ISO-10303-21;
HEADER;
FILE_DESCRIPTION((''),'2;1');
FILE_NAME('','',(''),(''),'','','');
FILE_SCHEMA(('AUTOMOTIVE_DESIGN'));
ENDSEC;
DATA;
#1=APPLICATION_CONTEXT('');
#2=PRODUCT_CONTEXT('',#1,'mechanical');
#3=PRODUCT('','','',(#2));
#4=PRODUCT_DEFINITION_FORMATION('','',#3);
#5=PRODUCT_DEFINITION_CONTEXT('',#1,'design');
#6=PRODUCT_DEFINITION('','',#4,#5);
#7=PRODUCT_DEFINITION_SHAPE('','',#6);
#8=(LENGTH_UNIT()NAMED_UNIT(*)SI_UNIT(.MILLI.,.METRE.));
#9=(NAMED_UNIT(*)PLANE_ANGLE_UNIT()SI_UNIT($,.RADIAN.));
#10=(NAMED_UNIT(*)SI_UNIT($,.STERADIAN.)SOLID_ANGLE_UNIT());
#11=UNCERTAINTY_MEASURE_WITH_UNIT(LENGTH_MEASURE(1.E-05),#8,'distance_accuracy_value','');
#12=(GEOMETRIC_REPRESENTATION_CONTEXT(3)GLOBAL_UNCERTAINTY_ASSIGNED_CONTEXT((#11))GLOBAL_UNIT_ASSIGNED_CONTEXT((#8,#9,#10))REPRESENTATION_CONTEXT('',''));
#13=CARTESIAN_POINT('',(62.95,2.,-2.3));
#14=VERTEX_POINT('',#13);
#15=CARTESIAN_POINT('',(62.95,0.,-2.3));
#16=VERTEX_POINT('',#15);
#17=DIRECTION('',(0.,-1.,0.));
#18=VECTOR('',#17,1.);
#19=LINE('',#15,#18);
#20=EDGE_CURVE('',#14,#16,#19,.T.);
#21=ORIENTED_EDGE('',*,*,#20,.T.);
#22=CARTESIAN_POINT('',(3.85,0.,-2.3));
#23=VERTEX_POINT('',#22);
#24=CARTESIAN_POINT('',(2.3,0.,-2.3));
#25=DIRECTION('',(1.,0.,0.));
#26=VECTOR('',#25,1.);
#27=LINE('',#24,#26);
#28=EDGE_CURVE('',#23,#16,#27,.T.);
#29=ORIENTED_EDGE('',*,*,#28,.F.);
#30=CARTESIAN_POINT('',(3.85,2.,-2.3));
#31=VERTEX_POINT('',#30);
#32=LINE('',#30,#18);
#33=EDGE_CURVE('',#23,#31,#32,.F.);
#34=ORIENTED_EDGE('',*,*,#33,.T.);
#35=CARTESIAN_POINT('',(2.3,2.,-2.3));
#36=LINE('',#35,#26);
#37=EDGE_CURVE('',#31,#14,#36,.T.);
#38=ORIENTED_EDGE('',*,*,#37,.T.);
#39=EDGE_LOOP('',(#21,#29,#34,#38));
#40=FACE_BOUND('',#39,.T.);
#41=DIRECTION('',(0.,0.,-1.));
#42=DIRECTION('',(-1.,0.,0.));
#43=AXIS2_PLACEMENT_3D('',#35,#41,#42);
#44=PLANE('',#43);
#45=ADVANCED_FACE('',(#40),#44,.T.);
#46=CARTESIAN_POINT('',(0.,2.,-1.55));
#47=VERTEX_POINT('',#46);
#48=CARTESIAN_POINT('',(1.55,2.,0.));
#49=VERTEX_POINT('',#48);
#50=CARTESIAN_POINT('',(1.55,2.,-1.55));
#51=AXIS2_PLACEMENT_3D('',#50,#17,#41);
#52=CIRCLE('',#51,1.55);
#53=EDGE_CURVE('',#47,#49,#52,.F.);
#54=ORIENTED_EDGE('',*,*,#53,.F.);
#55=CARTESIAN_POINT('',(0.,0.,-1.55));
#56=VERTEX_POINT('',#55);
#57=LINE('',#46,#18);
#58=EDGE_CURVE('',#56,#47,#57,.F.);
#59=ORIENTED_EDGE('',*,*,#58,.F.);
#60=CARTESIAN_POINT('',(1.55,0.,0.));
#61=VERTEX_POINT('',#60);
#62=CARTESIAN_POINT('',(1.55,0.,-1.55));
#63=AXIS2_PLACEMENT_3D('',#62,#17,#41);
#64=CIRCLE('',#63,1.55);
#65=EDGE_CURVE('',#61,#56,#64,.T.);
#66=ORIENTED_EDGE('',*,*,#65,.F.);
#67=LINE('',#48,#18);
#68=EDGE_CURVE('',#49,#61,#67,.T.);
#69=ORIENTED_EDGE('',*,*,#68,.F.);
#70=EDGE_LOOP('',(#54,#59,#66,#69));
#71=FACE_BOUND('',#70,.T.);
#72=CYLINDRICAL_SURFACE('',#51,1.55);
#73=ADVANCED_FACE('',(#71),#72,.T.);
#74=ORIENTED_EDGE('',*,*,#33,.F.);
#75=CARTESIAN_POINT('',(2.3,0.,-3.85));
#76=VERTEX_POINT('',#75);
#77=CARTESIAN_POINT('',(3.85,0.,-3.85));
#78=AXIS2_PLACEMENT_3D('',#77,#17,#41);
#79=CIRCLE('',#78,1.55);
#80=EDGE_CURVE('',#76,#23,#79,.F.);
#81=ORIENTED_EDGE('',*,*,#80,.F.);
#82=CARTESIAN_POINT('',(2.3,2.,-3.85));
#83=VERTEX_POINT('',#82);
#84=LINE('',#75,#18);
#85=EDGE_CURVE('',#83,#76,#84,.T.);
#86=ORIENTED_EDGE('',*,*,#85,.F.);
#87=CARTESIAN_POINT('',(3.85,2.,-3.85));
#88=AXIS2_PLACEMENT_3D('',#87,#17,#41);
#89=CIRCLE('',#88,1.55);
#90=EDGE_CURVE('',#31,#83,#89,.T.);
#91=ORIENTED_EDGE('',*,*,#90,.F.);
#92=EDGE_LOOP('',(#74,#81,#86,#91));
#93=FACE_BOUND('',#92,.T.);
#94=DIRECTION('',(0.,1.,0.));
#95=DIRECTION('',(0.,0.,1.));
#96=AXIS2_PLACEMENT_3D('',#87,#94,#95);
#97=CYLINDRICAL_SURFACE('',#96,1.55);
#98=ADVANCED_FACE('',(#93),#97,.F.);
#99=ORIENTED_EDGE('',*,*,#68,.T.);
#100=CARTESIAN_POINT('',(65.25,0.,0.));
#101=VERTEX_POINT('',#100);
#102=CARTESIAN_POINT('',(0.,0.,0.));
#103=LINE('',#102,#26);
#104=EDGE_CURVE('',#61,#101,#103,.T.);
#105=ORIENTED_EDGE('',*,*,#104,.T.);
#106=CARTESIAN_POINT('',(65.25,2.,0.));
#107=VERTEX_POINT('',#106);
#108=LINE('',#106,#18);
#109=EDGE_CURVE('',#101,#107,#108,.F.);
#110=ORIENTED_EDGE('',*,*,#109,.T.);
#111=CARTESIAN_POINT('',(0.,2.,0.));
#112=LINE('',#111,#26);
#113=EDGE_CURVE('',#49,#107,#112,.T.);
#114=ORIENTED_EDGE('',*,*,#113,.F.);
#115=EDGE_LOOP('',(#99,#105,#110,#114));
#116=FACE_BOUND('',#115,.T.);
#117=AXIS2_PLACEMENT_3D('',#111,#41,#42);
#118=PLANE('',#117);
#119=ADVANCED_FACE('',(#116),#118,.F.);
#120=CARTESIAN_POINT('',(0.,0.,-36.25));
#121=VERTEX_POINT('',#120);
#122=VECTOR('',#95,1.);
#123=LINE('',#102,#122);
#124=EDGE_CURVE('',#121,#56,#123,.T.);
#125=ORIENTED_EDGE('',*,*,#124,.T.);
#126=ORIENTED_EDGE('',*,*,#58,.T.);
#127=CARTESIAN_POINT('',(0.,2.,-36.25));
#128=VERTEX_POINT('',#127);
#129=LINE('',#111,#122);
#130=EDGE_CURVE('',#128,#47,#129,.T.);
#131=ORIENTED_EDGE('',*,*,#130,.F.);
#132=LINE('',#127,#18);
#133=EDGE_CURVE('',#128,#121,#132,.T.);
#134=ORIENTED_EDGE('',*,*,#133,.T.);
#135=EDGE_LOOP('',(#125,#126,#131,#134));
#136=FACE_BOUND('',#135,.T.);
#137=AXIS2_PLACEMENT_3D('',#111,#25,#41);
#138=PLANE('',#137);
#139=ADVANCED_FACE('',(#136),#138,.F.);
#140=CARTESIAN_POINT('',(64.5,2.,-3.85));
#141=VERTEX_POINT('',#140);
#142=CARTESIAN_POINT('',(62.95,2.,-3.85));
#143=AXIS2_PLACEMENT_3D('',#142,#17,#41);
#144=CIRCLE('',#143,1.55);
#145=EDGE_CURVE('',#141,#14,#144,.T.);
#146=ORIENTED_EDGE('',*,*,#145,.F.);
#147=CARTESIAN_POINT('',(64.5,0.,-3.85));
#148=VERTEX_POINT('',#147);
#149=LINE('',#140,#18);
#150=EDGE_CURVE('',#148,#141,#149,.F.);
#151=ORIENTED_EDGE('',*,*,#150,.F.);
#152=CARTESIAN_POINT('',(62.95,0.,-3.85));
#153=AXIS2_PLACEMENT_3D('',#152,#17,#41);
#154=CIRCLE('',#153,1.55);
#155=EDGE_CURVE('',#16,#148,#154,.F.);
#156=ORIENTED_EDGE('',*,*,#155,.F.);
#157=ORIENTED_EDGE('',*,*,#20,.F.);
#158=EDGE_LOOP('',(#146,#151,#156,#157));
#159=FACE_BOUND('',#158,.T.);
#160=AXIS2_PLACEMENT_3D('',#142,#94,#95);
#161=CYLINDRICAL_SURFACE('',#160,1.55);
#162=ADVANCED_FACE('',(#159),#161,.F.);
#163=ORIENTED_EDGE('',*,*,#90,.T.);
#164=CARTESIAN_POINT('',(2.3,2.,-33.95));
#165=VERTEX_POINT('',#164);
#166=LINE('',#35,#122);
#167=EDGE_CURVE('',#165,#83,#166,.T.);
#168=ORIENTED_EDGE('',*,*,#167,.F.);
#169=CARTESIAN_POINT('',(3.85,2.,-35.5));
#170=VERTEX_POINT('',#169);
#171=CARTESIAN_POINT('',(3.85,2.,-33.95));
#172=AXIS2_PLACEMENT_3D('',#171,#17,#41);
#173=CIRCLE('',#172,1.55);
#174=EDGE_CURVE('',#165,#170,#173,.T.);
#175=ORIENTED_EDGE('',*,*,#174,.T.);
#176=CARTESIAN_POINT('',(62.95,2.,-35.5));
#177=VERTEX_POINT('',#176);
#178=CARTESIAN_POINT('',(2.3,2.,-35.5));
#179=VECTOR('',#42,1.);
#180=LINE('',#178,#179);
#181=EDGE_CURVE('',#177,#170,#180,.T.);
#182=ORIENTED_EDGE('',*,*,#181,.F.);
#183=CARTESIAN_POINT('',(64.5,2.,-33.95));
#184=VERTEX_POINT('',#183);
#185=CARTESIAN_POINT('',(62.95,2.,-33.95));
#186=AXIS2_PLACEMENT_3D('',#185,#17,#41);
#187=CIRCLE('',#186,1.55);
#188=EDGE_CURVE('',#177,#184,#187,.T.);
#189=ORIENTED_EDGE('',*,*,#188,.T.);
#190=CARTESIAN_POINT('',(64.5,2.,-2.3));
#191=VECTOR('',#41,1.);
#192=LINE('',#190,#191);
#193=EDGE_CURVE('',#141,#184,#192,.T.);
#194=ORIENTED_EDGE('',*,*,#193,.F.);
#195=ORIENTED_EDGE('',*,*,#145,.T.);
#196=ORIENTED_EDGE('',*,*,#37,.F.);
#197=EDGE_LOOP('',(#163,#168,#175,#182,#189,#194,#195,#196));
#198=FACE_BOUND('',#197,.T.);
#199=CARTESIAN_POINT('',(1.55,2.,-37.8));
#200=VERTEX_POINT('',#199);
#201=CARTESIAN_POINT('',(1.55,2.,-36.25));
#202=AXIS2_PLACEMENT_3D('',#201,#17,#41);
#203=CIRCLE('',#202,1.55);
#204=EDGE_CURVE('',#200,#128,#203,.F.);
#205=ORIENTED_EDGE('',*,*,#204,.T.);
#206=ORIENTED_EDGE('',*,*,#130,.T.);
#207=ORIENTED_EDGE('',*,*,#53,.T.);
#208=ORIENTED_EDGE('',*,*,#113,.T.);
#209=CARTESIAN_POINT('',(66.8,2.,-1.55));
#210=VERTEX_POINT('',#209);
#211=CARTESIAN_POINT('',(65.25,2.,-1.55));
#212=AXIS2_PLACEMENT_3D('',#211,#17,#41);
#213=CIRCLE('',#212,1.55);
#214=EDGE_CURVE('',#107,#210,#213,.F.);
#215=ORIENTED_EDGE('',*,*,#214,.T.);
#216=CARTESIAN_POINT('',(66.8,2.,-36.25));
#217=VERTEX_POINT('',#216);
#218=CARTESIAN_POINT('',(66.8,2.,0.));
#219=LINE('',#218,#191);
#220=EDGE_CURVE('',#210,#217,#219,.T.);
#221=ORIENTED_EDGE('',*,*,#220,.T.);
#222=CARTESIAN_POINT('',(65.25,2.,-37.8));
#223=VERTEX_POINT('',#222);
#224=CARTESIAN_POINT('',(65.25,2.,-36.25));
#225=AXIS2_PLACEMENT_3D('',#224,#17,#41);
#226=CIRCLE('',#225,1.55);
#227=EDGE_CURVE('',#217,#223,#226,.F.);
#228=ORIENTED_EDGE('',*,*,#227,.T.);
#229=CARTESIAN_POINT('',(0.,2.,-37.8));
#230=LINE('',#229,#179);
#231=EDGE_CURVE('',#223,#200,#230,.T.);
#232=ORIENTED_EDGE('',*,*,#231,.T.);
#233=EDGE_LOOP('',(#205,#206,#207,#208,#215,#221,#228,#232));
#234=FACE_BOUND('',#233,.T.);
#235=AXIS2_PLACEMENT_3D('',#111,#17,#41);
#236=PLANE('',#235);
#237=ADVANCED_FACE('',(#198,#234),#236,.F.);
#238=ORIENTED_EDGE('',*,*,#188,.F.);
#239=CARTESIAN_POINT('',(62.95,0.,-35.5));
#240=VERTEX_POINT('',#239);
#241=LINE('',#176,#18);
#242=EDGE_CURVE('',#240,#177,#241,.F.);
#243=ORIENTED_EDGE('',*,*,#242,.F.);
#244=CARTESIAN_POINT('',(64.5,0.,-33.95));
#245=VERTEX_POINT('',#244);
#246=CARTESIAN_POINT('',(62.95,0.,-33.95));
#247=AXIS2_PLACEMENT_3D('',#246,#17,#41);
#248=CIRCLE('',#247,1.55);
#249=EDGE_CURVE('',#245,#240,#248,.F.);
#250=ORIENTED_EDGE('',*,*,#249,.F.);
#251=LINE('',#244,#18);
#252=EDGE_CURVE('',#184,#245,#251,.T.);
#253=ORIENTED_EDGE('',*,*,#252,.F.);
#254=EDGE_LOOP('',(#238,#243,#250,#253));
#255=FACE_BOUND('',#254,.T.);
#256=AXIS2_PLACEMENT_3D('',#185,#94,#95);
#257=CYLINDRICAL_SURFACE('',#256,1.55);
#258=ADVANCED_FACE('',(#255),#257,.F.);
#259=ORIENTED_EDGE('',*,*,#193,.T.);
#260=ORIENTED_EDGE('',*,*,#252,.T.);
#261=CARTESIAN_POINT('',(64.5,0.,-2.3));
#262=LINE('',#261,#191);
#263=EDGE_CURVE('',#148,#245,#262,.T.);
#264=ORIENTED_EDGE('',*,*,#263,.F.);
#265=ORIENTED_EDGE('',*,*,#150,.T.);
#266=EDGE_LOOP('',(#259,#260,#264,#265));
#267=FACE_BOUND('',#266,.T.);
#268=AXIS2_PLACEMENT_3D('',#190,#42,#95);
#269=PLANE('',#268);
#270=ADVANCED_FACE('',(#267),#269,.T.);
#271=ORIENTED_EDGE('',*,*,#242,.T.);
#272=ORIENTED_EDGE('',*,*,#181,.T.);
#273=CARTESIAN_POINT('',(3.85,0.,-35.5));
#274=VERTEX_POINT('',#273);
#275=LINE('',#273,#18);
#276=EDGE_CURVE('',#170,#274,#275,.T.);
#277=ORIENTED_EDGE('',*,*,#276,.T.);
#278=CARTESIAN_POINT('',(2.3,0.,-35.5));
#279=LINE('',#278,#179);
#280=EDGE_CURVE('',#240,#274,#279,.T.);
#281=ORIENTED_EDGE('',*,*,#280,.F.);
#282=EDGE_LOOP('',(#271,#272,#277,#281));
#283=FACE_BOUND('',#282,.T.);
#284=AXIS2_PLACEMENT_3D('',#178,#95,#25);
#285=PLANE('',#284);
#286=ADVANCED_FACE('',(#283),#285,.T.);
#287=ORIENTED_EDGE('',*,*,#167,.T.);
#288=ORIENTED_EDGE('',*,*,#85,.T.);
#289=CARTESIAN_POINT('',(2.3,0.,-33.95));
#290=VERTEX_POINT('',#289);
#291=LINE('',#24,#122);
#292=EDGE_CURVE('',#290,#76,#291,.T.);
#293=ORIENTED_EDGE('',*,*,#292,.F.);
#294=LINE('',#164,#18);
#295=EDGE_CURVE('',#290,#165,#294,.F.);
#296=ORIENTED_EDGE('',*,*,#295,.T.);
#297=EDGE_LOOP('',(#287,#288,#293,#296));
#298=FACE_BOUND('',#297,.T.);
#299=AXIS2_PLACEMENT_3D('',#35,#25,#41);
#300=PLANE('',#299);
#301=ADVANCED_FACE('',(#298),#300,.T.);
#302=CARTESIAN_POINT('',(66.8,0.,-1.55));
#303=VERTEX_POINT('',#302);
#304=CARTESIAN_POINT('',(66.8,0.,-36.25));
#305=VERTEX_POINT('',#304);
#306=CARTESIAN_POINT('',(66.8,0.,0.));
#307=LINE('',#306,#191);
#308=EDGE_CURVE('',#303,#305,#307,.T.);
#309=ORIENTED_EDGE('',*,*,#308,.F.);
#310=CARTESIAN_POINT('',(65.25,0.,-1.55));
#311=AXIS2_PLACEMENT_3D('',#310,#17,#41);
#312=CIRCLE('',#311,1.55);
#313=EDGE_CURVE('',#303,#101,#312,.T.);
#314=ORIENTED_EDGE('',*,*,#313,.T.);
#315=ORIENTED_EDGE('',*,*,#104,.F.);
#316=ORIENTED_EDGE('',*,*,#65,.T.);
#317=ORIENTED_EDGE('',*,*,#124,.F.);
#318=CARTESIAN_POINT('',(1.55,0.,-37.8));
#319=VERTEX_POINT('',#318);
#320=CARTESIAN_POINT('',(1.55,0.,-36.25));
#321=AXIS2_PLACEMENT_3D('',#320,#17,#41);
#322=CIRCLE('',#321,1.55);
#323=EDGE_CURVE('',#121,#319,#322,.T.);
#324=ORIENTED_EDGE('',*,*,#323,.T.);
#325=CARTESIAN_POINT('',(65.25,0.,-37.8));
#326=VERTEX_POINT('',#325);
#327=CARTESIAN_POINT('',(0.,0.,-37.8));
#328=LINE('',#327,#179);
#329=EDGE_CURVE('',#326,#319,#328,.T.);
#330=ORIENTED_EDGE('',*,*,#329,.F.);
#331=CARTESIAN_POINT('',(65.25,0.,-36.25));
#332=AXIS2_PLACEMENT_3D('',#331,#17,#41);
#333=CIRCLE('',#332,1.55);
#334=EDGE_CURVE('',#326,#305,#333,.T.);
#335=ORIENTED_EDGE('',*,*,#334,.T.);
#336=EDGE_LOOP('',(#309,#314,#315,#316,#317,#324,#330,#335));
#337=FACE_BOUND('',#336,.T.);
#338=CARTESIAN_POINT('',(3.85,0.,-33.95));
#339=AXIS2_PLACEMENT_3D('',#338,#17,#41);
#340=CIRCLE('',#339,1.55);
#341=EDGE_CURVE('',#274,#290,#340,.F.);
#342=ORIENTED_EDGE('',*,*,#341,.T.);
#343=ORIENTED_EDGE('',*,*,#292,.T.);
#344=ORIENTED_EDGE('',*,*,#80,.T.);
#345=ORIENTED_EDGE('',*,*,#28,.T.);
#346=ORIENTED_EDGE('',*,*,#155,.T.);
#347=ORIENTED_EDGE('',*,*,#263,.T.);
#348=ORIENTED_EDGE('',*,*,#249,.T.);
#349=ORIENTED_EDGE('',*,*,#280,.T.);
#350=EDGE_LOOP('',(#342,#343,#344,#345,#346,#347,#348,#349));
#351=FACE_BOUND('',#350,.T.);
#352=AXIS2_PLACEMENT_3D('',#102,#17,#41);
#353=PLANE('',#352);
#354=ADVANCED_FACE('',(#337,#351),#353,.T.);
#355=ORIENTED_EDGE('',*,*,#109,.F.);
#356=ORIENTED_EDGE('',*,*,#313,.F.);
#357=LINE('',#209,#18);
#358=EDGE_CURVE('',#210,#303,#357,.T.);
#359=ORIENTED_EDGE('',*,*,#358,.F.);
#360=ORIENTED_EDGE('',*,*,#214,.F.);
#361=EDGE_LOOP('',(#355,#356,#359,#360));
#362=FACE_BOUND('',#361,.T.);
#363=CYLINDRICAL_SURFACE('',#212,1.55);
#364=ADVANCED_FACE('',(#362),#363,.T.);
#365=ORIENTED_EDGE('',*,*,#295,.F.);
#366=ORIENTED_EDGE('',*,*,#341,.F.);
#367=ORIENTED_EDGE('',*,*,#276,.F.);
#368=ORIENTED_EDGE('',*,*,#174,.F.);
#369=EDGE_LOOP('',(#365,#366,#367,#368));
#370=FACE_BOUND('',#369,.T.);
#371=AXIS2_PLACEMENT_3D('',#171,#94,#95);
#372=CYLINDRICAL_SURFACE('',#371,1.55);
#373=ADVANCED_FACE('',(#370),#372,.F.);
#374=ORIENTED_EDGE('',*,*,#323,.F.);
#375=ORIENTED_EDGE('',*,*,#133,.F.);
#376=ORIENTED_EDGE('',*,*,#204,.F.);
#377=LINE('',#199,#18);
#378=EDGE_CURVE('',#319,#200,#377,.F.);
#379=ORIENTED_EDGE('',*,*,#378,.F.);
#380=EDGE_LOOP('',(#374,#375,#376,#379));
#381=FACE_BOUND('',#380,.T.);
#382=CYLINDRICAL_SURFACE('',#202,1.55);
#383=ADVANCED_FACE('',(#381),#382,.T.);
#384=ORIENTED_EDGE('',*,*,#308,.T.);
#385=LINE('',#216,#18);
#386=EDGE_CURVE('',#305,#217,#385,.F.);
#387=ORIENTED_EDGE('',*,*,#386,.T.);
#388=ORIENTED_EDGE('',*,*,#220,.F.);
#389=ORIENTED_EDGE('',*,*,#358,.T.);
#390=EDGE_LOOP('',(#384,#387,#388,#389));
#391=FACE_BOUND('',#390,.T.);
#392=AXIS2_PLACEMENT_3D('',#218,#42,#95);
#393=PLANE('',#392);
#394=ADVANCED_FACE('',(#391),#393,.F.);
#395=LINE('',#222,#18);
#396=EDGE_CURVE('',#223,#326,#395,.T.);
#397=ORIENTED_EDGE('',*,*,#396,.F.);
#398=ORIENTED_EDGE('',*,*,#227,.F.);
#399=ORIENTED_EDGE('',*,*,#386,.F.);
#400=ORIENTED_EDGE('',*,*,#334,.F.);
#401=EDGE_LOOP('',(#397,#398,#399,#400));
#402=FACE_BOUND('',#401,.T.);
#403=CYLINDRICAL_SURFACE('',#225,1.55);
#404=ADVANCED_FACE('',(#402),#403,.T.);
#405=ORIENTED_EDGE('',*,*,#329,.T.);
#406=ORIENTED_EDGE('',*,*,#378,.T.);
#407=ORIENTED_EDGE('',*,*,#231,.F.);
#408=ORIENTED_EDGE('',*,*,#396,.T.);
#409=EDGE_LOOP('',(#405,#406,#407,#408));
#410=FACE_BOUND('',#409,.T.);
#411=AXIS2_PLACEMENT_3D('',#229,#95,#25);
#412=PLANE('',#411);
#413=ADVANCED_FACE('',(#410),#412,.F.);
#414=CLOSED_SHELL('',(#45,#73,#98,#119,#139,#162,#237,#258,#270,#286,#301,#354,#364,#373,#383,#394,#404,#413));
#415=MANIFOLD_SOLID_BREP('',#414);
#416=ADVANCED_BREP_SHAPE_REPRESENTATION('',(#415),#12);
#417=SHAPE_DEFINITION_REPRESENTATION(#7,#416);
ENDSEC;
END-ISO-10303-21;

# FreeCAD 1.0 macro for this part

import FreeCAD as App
import Part
import Sketcher


def edges_at(feature, points):
    """Names of the edges that pass closest to the given points."""
    edges = feature.Shape.Edges
    near = lambda p: min(range(len(edges)), key=lambda i: edges[i].distToShape(Part.Vertex(*p))[0])
    return sorted({f"Edge{near(p) + 1}" for p in points})


def add_polygon(sketch, points):
    """Adds a closed chain of lines whose ends are joined by coincident constraints."""
    first, n = sketch.GeometryCount, len(points)
    for a, b in zip(points, points[1:] + points[:1]):
        sketch.addGeometry(Part.LineSegment(App.Vector(*a, 0), App.Vector(*b, 0)), False)
    for i in range(n):
        sketch.addConstraint(Sketcher.Constraint("Coincident", first + i, 2, first + (i + 1) % n, 1))

doc = App.newDocument("Part")
body = doc.addObject("PartDesign::Body", "Body")

# Sketch on XZ plane
sketch1 = body.newObject("Sketcher::SketchObject", "Sketch")
sketch1.AttachmentSupport = (doc.getObject("XZ_Plane"), [""])
sketch1.MapMode = "FlatFace"
add_polygon(sketch1, [(0, -37.8), (0, 0), (66.8, 0), (66.8, -37.8)])  # lines 0-3
add_polygon(sketch1, [(64.5, -2.3), (2.3, -2.3), (2.3, -35.5), (64.5, -35.5)])  # lines 4-7
sketch1.addConstraint([
    Sketcher.Constraint("Vertical", 0),
    Sketcher.Constraint("Horizontal", 1),
    Sketcher.Constraint("Vertical", 2),
    Sketcher.Constraint("Horizontal", 3),
    Sketcher.Constraint("Horizontal", 4),
    Sketcher.Constraint("Vertical", 5),
    Sketcher.Constraint("Horizontal", 6),
    Sketcher.Constraint("Vertical", 7),
    Sketcher.Constraint("Coincident", 0, 2, -1, 1),
    Sketcher.Constraint("DistanceX", 1, 1, 1, 2, 66.8),
    Sketcher.Constraint("DistanceX", 4, 2, 4, 1, 62.2),
    Sketcher.Constraint("DistanceY", 0, 1, 0, 2, 37.8),
    Sketcher.Constraint("DistanceY", 5, 2, 5, 1, 33.2),
    Sketcher.Constraint("DistanceX", -1, 1, 4, 2, 2.3),
    Sketcher.Constraint("DistanceY", 4, 2, -1, 1, 2.3),
])
pad1 = body.newObject("PartDesign::Pad", "Pad")
pad1.Profile = sketch1
pad1.Length = 2
pad1.Reversed = True
doc.recompute()

fillet = body.newObject("PartDesign::Fillet", "Fillet")
fillet.Base = (pad1, edges_at(pad1, [
    (2.3, 1, -35.5),
    (2.3, 1, -2.3),
    (64.5, 1, -2.3),
    (64.5, 1, -35.5),
    (0, 1, -37.8),
    (66.8, 1, -37.8),
    (66.8, 1, 0),
    (0, 1, 0),
]))
fillet.Radius = 1.55

doc.recompute()
